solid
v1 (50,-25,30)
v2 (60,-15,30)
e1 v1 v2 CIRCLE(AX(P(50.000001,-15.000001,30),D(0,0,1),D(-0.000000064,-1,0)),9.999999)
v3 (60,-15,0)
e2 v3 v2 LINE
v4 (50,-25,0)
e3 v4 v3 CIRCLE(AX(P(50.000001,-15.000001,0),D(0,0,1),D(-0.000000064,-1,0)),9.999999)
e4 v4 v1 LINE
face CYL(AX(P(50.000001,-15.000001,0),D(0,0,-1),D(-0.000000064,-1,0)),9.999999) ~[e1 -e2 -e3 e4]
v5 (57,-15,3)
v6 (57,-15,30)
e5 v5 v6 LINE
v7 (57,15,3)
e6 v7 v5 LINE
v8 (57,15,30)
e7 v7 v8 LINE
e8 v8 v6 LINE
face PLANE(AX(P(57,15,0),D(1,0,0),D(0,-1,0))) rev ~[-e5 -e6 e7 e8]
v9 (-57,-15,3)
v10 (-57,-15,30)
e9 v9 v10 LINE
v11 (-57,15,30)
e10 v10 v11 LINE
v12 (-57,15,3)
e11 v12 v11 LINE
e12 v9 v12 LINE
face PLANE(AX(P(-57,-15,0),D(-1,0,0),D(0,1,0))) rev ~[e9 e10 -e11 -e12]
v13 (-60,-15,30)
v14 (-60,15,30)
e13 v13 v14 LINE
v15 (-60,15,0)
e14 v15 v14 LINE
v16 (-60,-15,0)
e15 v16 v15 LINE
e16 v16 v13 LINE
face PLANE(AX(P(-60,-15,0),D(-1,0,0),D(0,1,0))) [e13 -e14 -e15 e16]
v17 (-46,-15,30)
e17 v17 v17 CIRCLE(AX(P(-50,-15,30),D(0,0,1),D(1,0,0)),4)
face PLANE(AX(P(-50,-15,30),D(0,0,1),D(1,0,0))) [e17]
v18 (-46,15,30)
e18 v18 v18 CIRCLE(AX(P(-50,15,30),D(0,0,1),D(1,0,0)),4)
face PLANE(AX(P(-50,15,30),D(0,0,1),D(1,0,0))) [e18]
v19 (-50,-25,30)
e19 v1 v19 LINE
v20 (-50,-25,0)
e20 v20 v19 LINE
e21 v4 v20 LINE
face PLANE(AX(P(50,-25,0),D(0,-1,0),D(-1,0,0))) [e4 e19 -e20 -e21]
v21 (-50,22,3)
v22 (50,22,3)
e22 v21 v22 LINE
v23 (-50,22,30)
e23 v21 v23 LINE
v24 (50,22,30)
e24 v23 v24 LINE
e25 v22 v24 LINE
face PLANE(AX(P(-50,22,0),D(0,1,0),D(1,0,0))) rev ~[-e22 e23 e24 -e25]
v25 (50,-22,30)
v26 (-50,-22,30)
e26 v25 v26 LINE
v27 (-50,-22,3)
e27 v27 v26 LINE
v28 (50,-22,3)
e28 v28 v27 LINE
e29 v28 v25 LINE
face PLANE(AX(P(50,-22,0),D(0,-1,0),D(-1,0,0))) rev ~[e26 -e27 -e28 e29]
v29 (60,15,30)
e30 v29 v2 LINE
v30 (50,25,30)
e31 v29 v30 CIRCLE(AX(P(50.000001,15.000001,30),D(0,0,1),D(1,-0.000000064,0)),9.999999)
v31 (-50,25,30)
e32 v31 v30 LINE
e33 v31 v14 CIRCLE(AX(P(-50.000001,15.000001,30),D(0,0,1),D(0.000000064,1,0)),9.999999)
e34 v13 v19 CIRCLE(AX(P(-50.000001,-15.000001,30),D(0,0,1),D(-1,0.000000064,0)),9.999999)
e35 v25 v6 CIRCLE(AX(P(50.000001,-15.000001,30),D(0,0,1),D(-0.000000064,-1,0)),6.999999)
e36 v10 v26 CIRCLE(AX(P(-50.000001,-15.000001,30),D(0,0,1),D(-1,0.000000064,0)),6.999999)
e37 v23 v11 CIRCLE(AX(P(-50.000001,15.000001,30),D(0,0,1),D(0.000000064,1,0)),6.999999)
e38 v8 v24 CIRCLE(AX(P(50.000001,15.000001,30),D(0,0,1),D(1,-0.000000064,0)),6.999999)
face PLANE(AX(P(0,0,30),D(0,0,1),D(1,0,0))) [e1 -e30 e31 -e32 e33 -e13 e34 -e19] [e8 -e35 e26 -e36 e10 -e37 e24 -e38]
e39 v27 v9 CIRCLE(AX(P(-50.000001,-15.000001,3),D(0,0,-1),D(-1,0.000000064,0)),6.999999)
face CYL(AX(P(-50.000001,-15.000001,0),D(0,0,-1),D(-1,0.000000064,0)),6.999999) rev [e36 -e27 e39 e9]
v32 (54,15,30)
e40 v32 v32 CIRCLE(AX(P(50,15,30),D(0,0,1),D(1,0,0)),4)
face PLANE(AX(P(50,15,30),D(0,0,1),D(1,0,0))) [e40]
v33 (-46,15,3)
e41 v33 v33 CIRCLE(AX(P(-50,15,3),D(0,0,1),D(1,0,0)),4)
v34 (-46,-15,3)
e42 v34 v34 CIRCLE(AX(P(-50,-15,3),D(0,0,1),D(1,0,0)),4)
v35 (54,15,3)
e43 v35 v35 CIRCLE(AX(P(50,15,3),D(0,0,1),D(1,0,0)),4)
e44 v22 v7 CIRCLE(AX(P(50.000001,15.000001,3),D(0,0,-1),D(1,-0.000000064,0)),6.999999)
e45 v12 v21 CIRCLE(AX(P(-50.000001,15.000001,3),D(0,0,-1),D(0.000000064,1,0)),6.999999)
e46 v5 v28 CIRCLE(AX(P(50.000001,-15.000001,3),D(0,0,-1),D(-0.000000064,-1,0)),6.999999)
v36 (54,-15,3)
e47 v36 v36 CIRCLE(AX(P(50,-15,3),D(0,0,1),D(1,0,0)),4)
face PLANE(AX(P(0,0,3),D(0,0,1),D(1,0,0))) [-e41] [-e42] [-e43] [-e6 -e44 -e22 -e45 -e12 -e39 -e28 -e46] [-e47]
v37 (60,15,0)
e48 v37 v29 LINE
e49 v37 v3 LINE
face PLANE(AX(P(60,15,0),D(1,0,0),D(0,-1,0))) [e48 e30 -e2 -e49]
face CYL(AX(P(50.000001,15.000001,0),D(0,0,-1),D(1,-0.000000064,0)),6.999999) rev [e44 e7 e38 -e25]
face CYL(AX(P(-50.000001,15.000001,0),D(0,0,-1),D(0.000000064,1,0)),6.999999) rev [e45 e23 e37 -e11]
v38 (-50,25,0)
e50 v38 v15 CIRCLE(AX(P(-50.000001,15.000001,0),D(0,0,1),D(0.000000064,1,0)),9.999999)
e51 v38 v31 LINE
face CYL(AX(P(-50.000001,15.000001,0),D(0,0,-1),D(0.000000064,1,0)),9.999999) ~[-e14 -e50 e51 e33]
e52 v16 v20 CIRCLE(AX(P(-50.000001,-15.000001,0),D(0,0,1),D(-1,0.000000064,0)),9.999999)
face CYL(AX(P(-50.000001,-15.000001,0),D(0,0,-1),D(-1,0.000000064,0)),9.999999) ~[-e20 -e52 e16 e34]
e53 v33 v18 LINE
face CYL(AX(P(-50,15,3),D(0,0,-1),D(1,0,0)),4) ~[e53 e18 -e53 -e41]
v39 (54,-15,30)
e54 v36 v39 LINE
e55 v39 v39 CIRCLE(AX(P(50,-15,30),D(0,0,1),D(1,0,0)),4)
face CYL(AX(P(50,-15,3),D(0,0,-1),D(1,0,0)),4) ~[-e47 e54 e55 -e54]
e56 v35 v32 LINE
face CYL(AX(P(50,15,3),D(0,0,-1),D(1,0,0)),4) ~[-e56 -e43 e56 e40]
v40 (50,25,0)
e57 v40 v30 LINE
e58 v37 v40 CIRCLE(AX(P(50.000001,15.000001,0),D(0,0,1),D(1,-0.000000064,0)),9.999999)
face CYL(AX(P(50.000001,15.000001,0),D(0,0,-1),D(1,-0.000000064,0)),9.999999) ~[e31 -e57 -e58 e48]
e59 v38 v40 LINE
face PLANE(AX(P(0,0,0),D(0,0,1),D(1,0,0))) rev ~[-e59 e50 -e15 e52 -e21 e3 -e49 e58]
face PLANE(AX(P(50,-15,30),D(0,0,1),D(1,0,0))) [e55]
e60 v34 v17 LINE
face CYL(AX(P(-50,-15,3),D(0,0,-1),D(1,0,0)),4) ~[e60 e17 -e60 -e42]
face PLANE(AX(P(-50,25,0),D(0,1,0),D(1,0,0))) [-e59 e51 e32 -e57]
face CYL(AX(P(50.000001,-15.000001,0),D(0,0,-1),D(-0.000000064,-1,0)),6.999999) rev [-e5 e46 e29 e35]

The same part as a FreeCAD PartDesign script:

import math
import FreeCAD as App
import Part
import Sketcher
from FreeCAD import Vector
Q = App.Units.Quantity


def faces_at(feature, points):
    """Names of the faces that lie closest to the given points."""
    faces = feature.Shape.Faces
    near = lambda p: min(range(len(faces)), key=lambda i: faces[i].distToShape(Part.Vertex(*p))[0])
    return sorted({f"Face{near(p) + 1}" for p in points})

doc = App.newDocument("Part")
body = doc.addObject("PartDesign::Body", "Body")

sketch1 = body.newObject("Sketcher::SketchObject", "Sketch")
sketch1.AttachmentSupport = (doc.getObject("XY_Plane"), [""])
sketch1.MapMode = "FlatFace"
sketch1.addGeometry(Part.ArcOfCircle(Part.Circle(Vector(-50.000001, 15.000001, 0), Vector(0, 0, 1), 9.999999), math.radians(89.999996), math.radians(180.000004)), False)
sketch1.addGeometry(Part.LineSegment(Vector(-60, 15, 0), Vector(-60, -15, 0)), False)
sketch1.addGeometry(Part.ArcOfCircle(Part.Circle(Vector(-50.000001, -15.000001, 0), Vector(0, 0, 1), 9.999999), math.radians(179.999996), math.radians(270.000004)), False)
sketch1.addGeometry(Part.LineSegment(Vector(-50, -25, 0), Vector(50, -25, 0)), False)
sketch1.addGeometry(Part.ArcOfCircle(Part.Circle(Vector(50.000001, -15.000001, 0), Vector(0, 0, 1), 9.999999), math.radians(-90.000004), math.radians(0.000004)), False)
sketch1.addGeometry(Part.LineSegment(Vector(60, -15, 0), Vector(60, 15, 0)), False)
sketch1.addGeometry(Part.ArcOfCircle(Part.Circle(Vector(50.000001, 15.000001, 0), Vector(0, 0, 1), 9.999999), math.radians(-0.000004), math.radians(90.000004)), False)
sketch1.addGeometry(Part.LineSegment(Vector(50, 25, 0), Vector(-50, 25, 0)), False)
sketch1.addConstraint(Sketcher.Constraint("Tangent", 0, 2, 1, 1))
sketch1.addConstraint(Sketcher.Constraint("Tangent", 1, 2, 2, 1))
sketch1.addConstraint(Sketcher.Constraint("Tangent", 2, 2, 3, 1))
sketch1.addConstraint(Sketcher.Constraint("Tangent", 3, 2, 4, 1))
sketch1.addConstraint(Sketcher.Constraint("Tangent", 4, 2, 5, 1))
sketch1.addConstraint(Sketcher.Constraint("Tangent", 5, 2, 6, 1))
sketch1.addConstraint(Sketcher.Constraint("Tangent", 6, 2, 7, 1))
sketch1.addConstraint(Sketcher.Constraint("Tangent", 7, 2, 0, 1))
sketch1.addConstraint(Sketcher.Constraint("Vertical", 1))
sketch1.addConstraint(Sketcher.Constraint("Horizontal", 3))
sketch1.addConstraint(Sketcher.Constraint("Vertical", 5))
sketch1.addConstraint(Sketcher.Constraint("Horizontal", 7))
sketch1.addConstraint(Sketcher.Constraint("Equal", 0, 2))
sketch1.addConstraint(Sketcher.Constraint("Equal", 2, 4))
sketch1.addConstraint(Sketcher.Constraint("Equal", 4, 6))
sketch1.addConstraint(Sketcher.Constraint("Symmetric", 0, 3, 4, 3, -1, 1))
sketch1.addConstraint(Sketcher.Constraint("Radius", 0, Q("9.999999 mm")))
sketch1.addConstraint(Sketcher.Constraint("DistanceX", 3, 1, 3, 2, Q("100 mm")))
sketch1.addConstraint(Sketcher.Constraint("DistanceY", 1, 2, 1, 1, Q("30 mm")))
pad1 = body.newObject("PartDesign::Pad", "Pad")
pad1.Profile = sketch1
pad1.Length = 30
doc.recompute()

thickness = body.newObject("PartDesign::Thickness", "Thickness")
thickness.Base = (pad1, faces_at(pad1, [(0, 0, 30)]))
thickness.Value = 3
thickness.Reversed = True
thickness.Join = "Arc"

sketch2 = body.newObject("Sketcher::SketchObject", "Sketch001")
sketch2.AttachmentSupport = (doc.getObject("XY_Plane"), [""])
sketch2.MapMode = "FlatFace"
sketch2.AttachmentOffset = App.Placement(Vector(0, 0, 3), App.Rotation())
sketch2.addGeometry(Part.Circle(Vector(-50, 15, 0), Vector(0, 0, 1), 4), False)
sketch2.addGeometry(Part.Circle(Vector(-50, -15, 0), Vector(0, 0, 1), 4), False)
sketch2.addGeometry(Part.Circle(Vector(50, 15, 0), Vector(0, 0, 1), 4), False)
sketch2.addGeometry(Part.Circle(Vector(50, -15, 0), Vector(0, 0, 1), 4), False)
sketch2.addConstraint(Sketcher.Constraint("Equal", 0, 1))
sketch2.addConstraint(Sketcher.Constraint("Equal", 1, 2))
sketch2.addConstraint(Sketcher.Constraint("Equal", 2, 3))
sketch2.addConstraint(Sketcher.Constraint("Symmetric", 1, 3, 2, 3, -1, 1))
sketch2.addConstraint(Sketcher.Constraint("Symmetric", 0, 3, 3, 3, -1, 1))
sketch2.addConstraint(Sketcher.Constraint("Symmetric", 0, 3, 2, 3, -2))
sketch2.addConstraint(Sketcher.Constraint("Diameter", 0, Q("8 mm")))
sketch2.addConstraint(Sketcher.Constraint("DistanceX", 0, 3, -1, 1, Q("50 mm")))
sketch2.addConstraint(Sketcher.Constraint("DistanceY", -1, 1, 0, 3, Q("15 mm")))
pad2 = body.newObject("PartDesign::Pad", "Pad001")
pad2.Profile = sketch2
pad2.Length = 27

doc.recompute()
